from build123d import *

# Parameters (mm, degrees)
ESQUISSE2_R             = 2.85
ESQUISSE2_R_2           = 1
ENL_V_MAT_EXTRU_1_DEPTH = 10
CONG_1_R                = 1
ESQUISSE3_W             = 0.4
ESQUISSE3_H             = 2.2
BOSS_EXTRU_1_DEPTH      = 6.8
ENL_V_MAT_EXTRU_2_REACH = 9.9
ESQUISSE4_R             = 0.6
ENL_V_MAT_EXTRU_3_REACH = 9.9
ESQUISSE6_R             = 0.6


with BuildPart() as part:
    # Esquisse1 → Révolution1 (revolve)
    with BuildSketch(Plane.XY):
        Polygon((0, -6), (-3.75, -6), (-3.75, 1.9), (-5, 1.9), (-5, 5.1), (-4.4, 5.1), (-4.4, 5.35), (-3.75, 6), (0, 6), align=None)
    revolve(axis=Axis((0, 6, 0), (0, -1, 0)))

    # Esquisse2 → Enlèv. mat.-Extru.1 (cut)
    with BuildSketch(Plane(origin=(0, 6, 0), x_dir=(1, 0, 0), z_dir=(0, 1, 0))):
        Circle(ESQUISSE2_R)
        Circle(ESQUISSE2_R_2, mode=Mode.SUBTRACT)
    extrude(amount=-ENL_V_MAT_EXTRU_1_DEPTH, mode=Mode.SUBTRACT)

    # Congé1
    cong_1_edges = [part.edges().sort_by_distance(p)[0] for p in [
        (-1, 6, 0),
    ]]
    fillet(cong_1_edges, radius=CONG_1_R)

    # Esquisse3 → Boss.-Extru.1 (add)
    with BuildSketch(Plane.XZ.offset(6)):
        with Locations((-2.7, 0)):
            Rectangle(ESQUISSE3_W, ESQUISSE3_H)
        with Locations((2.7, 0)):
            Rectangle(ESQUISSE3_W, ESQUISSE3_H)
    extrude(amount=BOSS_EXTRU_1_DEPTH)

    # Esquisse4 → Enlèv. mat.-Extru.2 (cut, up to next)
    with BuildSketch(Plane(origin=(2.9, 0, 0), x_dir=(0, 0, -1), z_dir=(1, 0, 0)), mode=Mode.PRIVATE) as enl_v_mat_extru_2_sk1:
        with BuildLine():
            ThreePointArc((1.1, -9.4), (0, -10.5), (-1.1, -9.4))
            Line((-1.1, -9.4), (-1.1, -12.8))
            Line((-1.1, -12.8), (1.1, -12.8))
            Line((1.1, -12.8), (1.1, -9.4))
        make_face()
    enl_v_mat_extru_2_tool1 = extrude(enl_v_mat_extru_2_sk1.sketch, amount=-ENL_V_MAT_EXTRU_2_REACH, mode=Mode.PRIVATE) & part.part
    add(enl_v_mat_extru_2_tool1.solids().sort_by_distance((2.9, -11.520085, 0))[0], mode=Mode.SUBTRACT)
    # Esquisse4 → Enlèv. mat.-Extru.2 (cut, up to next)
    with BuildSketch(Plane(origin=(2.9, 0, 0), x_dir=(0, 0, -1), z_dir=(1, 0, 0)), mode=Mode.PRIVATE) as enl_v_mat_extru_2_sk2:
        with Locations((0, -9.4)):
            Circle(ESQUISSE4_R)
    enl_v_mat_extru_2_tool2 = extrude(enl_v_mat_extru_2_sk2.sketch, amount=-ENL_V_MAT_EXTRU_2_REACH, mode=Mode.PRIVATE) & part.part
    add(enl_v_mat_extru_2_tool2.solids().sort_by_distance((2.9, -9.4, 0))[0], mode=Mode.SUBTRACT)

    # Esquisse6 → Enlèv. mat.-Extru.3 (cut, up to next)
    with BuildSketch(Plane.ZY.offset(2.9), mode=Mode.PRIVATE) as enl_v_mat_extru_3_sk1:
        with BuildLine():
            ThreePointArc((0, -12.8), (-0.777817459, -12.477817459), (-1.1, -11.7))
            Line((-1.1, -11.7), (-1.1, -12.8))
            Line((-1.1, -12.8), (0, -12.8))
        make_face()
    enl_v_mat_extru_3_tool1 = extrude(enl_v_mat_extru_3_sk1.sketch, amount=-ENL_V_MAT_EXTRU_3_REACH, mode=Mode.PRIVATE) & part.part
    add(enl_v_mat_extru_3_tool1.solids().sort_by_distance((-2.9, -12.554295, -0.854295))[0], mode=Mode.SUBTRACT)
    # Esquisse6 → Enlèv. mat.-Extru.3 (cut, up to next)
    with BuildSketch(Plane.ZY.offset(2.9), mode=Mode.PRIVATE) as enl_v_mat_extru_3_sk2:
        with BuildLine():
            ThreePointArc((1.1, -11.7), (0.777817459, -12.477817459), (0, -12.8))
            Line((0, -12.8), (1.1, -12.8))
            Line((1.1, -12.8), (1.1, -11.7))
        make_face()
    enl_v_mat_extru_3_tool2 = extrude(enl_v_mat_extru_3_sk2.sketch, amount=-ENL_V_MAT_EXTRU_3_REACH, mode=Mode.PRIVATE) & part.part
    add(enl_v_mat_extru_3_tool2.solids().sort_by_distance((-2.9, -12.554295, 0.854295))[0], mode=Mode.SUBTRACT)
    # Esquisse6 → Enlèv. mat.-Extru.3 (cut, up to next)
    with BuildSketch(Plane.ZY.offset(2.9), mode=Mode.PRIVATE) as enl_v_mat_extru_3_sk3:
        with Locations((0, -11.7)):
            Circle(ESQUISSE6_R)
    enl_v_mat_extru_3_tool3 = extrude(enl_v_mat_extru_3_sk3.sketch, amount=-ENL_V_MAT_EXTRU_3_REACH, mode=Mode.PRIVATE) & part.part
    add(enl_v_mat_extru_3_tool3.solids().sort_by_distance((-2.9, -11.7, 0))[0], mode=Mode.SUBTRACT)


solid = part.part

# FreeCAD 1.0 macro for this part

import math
import FreeCAD as App
import Part
import Sketcher
Q = App.Units.Quantity


def edges_at(feature, points):
    """Names of the edges that pass closest to the given points."""
    edges = feature.Shape.Edges
    near = lambda p: min(range(len(edges)), key=lambda i: edges[i].distToShape(Part.Vertex(*p))[0])
    return sorted({f"Edge{near(p) + 1}" for p in points})


def add_polygon(sketch, points):
    """Adds a closed chain of lines whose ends are joined by coincident constraints."""
    first, n = sketch.GeometryCount, len(points)
    for a, b in zip(points, points[1:] + points[:1]):
        sketch.addGeometry(Part.LineSegment(App.Vector(*a, 0), App.Vector(*b, 0)), False)
    for i in range(n):
        sketch.addConstraint(Sketcher.Constraint("Coincident", first + i, 2, first + (i + 1) % n, 1))

doc = App.newDocument("Part")
params = doc.addObject("Spreadsheet::Sheet", "Params")
for row, (alias, value) in enumerate([
    ("sketch1_height", "12 mm"),
    ("sketch1_width", "0.6 mm"),
    ("sketch1_height2", "3.2 mm"),
    ("sketch1_height3", "7.9 mm"),
    ("sketch1_width2", "3.75 mm"),
    ("revolution_angle", "360 deg"),
    ("sketch2_diameter", "2 mm"),
    ("sketch2_diameter2", "5.7 mm"),
    ("pocket1_length", "10 mm"),
    ("fillet_radius", "1 mm"),
    ("sketch3_width", "0.4 mm"),
    ("sketch3_height", "2.2 mm"),
    ("pad1_length", "6.8 mm"),
    ("sketch4_radius", "1.1 mm"),
    ("sketch4_width", "3.4 mm"),
    ("sketch5_diameter", "1.2 mm"),
    ("sketch6_radius", "1.1 mm"),
    ("sketch7_radius", "1.1 mm"),
    ("sketch8_diameter", "1.2 mm"),
], start=1):
    params.set(f"A{row}", alias)
    params.set(f"B{row}", "=" + value)
    params.setAlias(f"B{row}", alias)

body = doc.addObject("PartDesign::Body", "Body")

# Sketch on XY plane
sketch1 = body.newObject("Sketcher::SketchObject", "Sketch")
sketch1.AttachmentSupport = (doc.getObject("XY_Plane"), [""])
sketch1.MapMode = "FlatFace"
add_polygon(sketch1, [(-3.75, -6), (0, -6), (0, 6), (-3.75, 6), (-4.4, 5.35), (-4.4, 5.1), (-5, 5.1), (-5, 1.9), (-3.75, 1.9)])  # lines 0-8
sketch1.addConstraint(Sketcher.Constraint("Horizontal", 0))
sketch1.addConstraint(Sketcher.Constraint("Vertical", 1))
sketch1.addConstraint(Sketcher.Constraint("Horizontal", 2))
sketch1.addConstraint(Sketcher.Constraint("Vertical", 4))
sketch1.addConstraint(Sketcher.Constraint("Horizontal", 5))
sketch1.addConstraint(Sketcher.Constraint("Vertical", 6))
sketch1.addConstraint(Sketcher.Constraint("Horizontal", 7))
sketch1.addConstraint(Sketcher.Constraint("Vertical", 8))
sketch1.addConstraint(Sketcher.Constraint("Symmetric", 0, 2, 1, 2, -1, 1))
sketch1.addConstraint(Sketcher.Constraint("Vertical", 2, 2, 7, 2))
sketch1.addConstraint(Sketcher.Constraint("DistanceY", 1, 1, 1, 2, Q("12 mm")))
sketch1.addConstraint(Sketcher.Constraint("Angle", 3, Q("-135 deg")))
sketch1.addConstraint(Sketcher.Constraint("DistanceX", 5, 2, 5, 1, Q("0.6 mm")))
sketch1.addConstraint(Sketcher.Constraint("DistanceY", 6, 2, 6, 1, Q("3.2 mm")))
sketch1.addConstraint(Sketcher.Constraint("DistanceY", 8, 2, 8, 1, Q("7.9 mm")))
sketch1.addConstraint(Sketcher.Constraint("DistanceX", 5, 2, -1, 1, Q("5 mm")))
sketch1.addConstraint(Sketcher.Constraint("DistanceX", 0, 1, 0, 2, Q("3.75 mm")))
sketch1.setExpression("Constraints[19]", "Params.sketch1_height")
sketch1.setExpression("Constraints[21]", "Params.sketch1_width")
sketch1.setExpression("Constraints[22]", "Params.sketch1_height2")
sketch1.setExpression("Constraints[23]", "Params.sketch1_height3")
sketch1.setExpression("Constraints[25]", "Params.sketch1_width2")
revolution = body.newObject("PartDesign::Revolution", "Revolution")
revolution.Profile = sketch1
revolution.ReferenceAxis = (sketch1, ["V_Axis"])
revolution.setExpression("Angle", "Params.revolution_angle")

# Sketch on XZ plane
sketch2 = body.newObject("Sketcher::SketchObject", "Sketch001")
sketch2.AttachmentSupport = (doc.getObject("XZ_Plane"), [""])
sketch2.MapMode = "FlatFace"
sketch2.AttachmentOffset = App.Placement(App.Vector(0, 0, -6), App.Rotation())
sketch2.addGeometry(Part.Circle(App.Vector(0, 0, 0), App.Vector(0, 0, 1), 2.85), False)
sketch2.addGeometry(Part.Circle(App.Vector(0, 0, 0), App.Vector(0, 0, 1), 1), False)
sketch2.addConstraint(Sketcher.Constraint("Coincident", 0, 3, -1, 1))
sketch2.addConstraint(Sketcher.Constraint("Coincident", 1, 3, -1, 1))
sketch2.addConstraint(Sketcher.Constraint("Diameter", 1, Q("2 mm")))
sketch2.addConstraint(Sketcher.Constraint("Diameter", 0, Q("5.7 mm")))
sketch2.setExpression("Constraints[2]", "Params.sketch2_diameter")
sketch2.setExpression("Constraints[3]", "Params.sketch2_diameter2")
pocket1 = body.newObject("PartDesign::Pocket", "Pocket")
pocket1.Profile = sketch2
pocket1.setExpression("Length", "Params.pocket1_length")
pocket1.Reversed = True
doc.recompute()

fillet = body.newObject("PartDesign::Fillet", "Fillet")
fillet.Base = (pocket1, edges_at(pocket1, [(-1, 6, 0)]))
fillet.setExpression("Radius", "Params.fillet_radius")

# Sketch on XZ plane
sketch3 = body.newObject("Sketcher::SketchObject", "Sketch002")
sketch3.AttachmentSupport = (doc.getObject("XZ_Plane"), [""])
sketch3.MapMode = "FlatFace"
sketch3.AttachmentOffset = App.Placement(App.Vector(0, 0, 6), App.Rotation())
add_polygon(sketch3, [(-2.9, 1.1), (-2.9, -1.1), (-2.5, -1.1), (-2.5, 1.1)])  # lines 0-3
add_polygon(sketch3, [(2.5, 1.1), (2.5, -1.1), (2.9, -1.1), (2.9, 1.1)])  # lines 4-7
sketch3.addConstraint(Sketcher.Constraint("Vertical", 0))
sketch3.addConstraint(Sketcher.Constraint("Horizontal", 1))
sketch3.addConstraint(Sketcher.Constraint("Vertical", 2))
sketch3.addConstraint(Sketcher.Constraint("Horizontal", 3))
sketch3.addConstraint(Sketcher.Constraint("Vertical", 4))
sketch3.addConstraint(Sketcher.Constraint("Horizontal", 5))
sketch3.addConstraint(Sketcher.Constraint("Vertical", 6))
sketch3.addConstraint(Sketcher.Constraint("Horizontal", 7))
sketch3.addConstraint(Sketcher.Constraint("Symmetric", 2, 2, 4, 2, -1, 1))
sketch3.addConstraint(Sketcher.Constraint("Symmetric", 0, 2, 6, 2, -1, 1))
sketch3.addConstraint(Sketcher.Constraint("Horizontal", 1, 2, 4, 2))
sketch3.addConstraint(Sketcher.Constraint("DistanceX", 1, 1, 1, 2, Q("0.4 mm")))
sketch3.addConstraint(Sketcher.Constraint("DistanceY", 0, 2, 0, 1, Q("2.2 mm")))
sketch3.addConstraint(Sketcher.Constraint("DistanceX", 1, 2, 4, 2, Q("5 mm")))
sketch3.setExpression("Constraints[19]", "Params.sketch3_width")
sketch3.setExpression("Constraints[20]", "Params.sketch3_height")
pad1 = body.newObject("PartDesign::Pad", "Pad")
pad1.Profile = sketch3
pad1.setExpression("Length", "Params.pad1_length")

# Sketch on YZ plane
sketch4 = body.newObject("Sketcher::SketchObject", "Sketch003")
sketch4.AttachmentSupport = (doc.getObject("YZ_Plane"), [""])
sketch4.MapMode = "FlatFace"
sketch4.AttachmentOffset = App.Placement(App.Vector(0, 0, 2.9), App.Rotation())
sketch4.addGeometry(Part.ArcOfCircle(Part.Circle(App.Vector(-9.4, 0, 0), App.Vector(0, 0, 1), 1.1), math.radians(90), math.radians(270)), False)
sketch4.addGeometry(Part.LineSegment(App.Vector(-9.4, 1.1, 0), App.Vector(-12.8, 1.1, 0)), False)
sketch4.addGeometry(Part.LineSegment(App.Vector(-12.8, 1.1, 0), App.Vector(-12.8, -1.1, 0)), False)
sketch4.addGeometry(Part.LineSegment(App.Vector(-12.8, -1.1, 0), App.Vector(-9.4, -1.1, 0)), False)
sketch4.addConstraint(Sketcher.Constraint("Tangent", 0, 1, 1, 1))
sketch4.addConstraint(Sketcher.Constraint("Coincident", 1, 2, 2, 1))
sketch4.addConstraint(Sketcher.Constraint("Coincident", 2, 2, 3, 1))
sketch4.addConstraint(Sketcher.Constraint("Tangent", 3, 2, 0, 2))
sketch4.addConstraint(Sketcher.Constraint("Horizontal", 1))
sketch4.addConstraint(Sketcher.Constraint("Vertical", 2))
sketch4.addConstraint(Sketcher.Constraint("Horizontal", 3))
sketch4.addConstraint(Sketcher.Constraint("PointOnObject", 0, 3, -1))
sketch4.addConstraint(Sketcher.Constraint("Radius", 0, Q("1.1 mm")))
sketch4.addConstraint(Sketcher.Constraint("DistanceX", 1, 2, 1, 1, Q("3.4 mm")))
sketch4.addConstraint(Sketcher.Constraint("DistanceX", 0, 3, -1, 1, Q("9.4 mm")))
sketch4.setExpression("Constraints[8]", "Params.sketch4_radius")
sketch4.setExpression("Constraints[9]", "Params.sketch4_width")
pocket2 = body.newObject("PartDesign::Pocket", "Pocket001")
pocket2.Profile = sketch4
pocket2.Type = "UpToFirst"

# Sketch on YZ plane
sketch5 = body.newObject("Sketcher::SketchObject", "Sketch004")
sketch5.AttachmentSupport = (doc.getObject("YZ_Plane"), [""])
sketch5.MapMode = "FlatFace"
sketch5.AttachmentOffset = App.Placement(App.Vector(0, 0, 2.9), App.Rotation())
sketch5.addGeometry(Part.Circle(App.Vector(-9.4, 0, 0), App.Vector(0, 0, 1), 0.6), False)
sketch5.addConstraint(Sketcher.Constraint("PointOnObject", 0, 3, -1))
sketch5.addConstraint(Sketcher.Constraint("Diameter", 0, Q("1.2 mm")))
sketch5.addConstraint(Sketcher.Constraint("DistanceX", 0, 3, -1, 1, Q("9.4 mm")))
sketch5.setExpression("Constraints[1]", "Params.sketch5_diameter")
pocket3 = body.newObject("PartDesign::Pocket", "Pocket002")
pocket3.Profile = sketch5
pocket3.Type = "UpToFirst"

# Sketch on YZ plane
sketch6 = body.newObject("Sketcher::SketchObject", "Sketch005")
sketch6.AttachmentSupport = (doc.getObject("YZ_Plane"), [""])
sketch6.MapMode = "FlatFace"
sketch6.AttachmentOffset = App.Placement(App.Vector(0, 0, -2.9), App.Rotation())
sketch6.addGeometry(Part.ArcOfCircle(Part.Circle(App.Vector(-11.7, 0, 0), App.Vector(0, 0, 1), 1.1), math.radians(-180), math.radians(-90)), False)
sketch6.addGeometry(Part.LineSegment(App.Vector(-11.7, -1.1, 0), App.Vector(-12.8, -1.1, 0)), False)
sketch6.addGeometry(Part.LineSegment(App.Vector(-12.8, -1.1, 0), App.Vector(-12.8, 0, 0)), False)
sketch6.addConstraint(Sketcher.Constraint("Tangent", 0, 2, 1, 1))
sketch6.addConstraint(Sketcher.Constraint("Coincident", 1, 2, 2, 1))
sketch6.addConstraint(Sketcher.Constraint("Tangent", 2, 2, 0, 1))
sketch6.addConstraint(Sketcher.Constraint("Horizontal", 1))
sketch6.addConstraint(Sketcher.Constraint("Vertical", 2))
sketch6.addConstraint(Sketcher.Constraint("PointOnObject", 0, 3, -1))
sketch6.addConstraint(Sketcher.Constraint("Radius", 0, Q("1.1 mm")))
sketch6.addConstraint(Sketcher.Constraint("DistanceX", 0, 3, -1, 1, Q("11.7 mm")))
sketch6.setExpression("Constraints[6]", "Params.sketch6_radius")
pocket4 = body.newObject("PartDesign::Pocket", "Pocket003")
pocket4.Profile = sketch6
pocket4.Type = "UpToFirst"
pocket4.Reversed = True

# Sketch on YZ plane
sketch7 = body.newObject("Sketcher::SketchObject", "Sketch006")
sketch7.AttachmentSupport = (doc.getObject("YZ_Plane"), [""])
sketch7.MapMode = "FlatFace"
sketch7.AttachmentOffset = App.Placement(App.Vector(0, 0, -2.9), App.Rotation())
sketch7.addGeometry(Part.ArcOfCircle(Part.Circle(App.Vector(-11.7, 0, 0), App.Vector(0, 0, 1), 1.1), math.radians(90), math.radians(180)), False)
sketch7.addGeometry(Part.LineSegment(App.Vector(-12.8, 0, 0), App.Vector(-12.8, 1.1, 0)), False)
sketch7.addGeometry(Part.LineSegment(App.Vector(-12.8, 1.1, 0), App.Vector(-11.7, 1.1, 0)), False)
sketch7.addConstraint(Sketcher.Constraint("Tangent", 0, 2, 1, 1))
sketch7.addConstraint(Sketcher.Constraint("Coincident", 1, 2, 2, 1))
sketch7.addConstraint(Sketcher.Constraint("Tangent", 2, 2, 0, 1))
sketch7.addConstraint(Sketcher.Constraint("Vertical", 1))
sketch7.addConstraint(Sketcher.Constraint("Horizontal", 2))
sketch7.addConstraint(Sketcher.Constraint("PointOnObject", 0, 3, -1))
sketch7.addConstraint(Sketcher.Constraint("Radius", 0, Q("1.1 mm")))
sketch7.addConstraint(Sketcher.Constraint("DistanceX", 0, 3, -1, 1, Q("11.7 mm")))
sketch7.setExpression("Constraints[6]", "Params.sketch7_radius")
pocket5 = body.newObject("PartDesign::Pocket", "Pocket004")
pocket5.Profile = sketch7
pocket5.Type = "UpToFirst"
pocket5.Reversed = True

# Sketch on YZ plane
sketch8 = body.newObject("Sketcher::SketchObject", "Sketch007")
sketch8.AttachmentSupport = (doc.getObject("YZ_Plane"), [""])
sketch8.MapMode = "FlatFace"
sketch8.AttachmentOffset = App.Placement(App.Vector(0, 0, -2.9), App.Rotation())
sketch8.addGeometry(Part.Circle(App.Vector(-11.7, 0, 0), App.Vector(0, 0, 1), 0.6), False)
sketch8.addConstraint(Sketcher.Constraint("PointOnObject", 0, 3, -1))
sketch8.addConstraint(Sketcher.Constraint("Diameter", 0, Q("1.2 mm")))
sketch8.addConstraint(Sketcher.Constraint("DistanceX", 0, 3, -1, 1, Q("11.7 mm")))
sketch8.setExpression("Constraints[1]", "Params.sketch8_diameter")
pocket6 = body.newObject("PartDesign::Pocket", "Pocket005")
pocket6.Profile = sketch8
pocket6.Type = "UpToFirst"
pocket6.Reversed = True

doc.recompute()
